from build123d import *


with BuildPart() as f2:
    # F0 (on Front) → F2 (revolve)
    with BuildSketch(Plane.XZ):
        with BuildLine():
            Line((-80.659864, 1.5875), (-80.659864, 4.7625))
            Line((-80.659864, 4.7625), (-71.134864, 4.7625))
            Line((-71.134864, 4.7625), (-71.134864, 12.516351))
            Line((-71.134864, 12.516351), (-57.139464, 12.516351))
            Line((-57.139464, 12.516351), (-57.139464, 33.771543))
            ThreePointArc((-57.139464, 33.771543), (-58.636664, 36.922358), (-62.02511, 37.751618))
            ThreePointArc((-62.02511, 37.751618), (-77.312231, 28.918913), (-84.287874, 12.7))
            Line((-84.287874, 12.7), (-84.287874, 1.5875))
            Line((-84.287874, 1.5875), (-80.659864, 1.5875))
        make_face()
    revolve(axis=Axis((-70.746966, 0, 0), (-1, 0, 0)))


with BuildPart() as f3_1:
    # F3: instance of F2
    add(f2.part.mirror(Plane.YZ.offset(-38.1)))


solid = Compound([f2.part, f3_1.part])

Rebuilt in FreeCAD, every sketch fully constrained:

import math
import FreeCAD as App
import Part
import Sketcher
from FreeCAD import Vector
Q = App.Units.Quantity

doc = App.newDocument("Part")
body = doc.addObject("PartDesign::Body", "Body")

# Sketch on XZ plane
sketch1 = body.newObject("Sketcher::SketchObject", "Sketch")
sketch1.AttachmentSupport = (doc.getObject("XZ_Plane"), [""])
sketch1.MapMode = "FlatFace"
sketch1.addGeometry([
    Part.LineSegment(Vector(-80.659864, 1.5875, 0), Vector(-80.659864, 4.7625, 0)),  # 0
    Part.LineSegment(Vector(-80.659864, 4.7625, 0), Vector(-71.134864, 4.7625, 0)),  # 1
    Part.LineSegment(Vector(-71.134864, 4.7625, 0), Vector(-71.134864, 12.516351, 0)),  # 2
    Part.LineSegment(Vector(-71.134864, 12.516351, 0), Vector(-57.139464, 12.516351, 0)),  # 3
    Part.LineSegment(Vector(-57.139464, 12.516351, 0), Vector(-57.139464, 33.771543, 0)),  # 4
    Part.ArcOfCircle(Part.Circle(Vector(-61.203464, 33.771543, 0), Vector(0, 0, 1), 4.064), math.radians(-0.000002), math.radians(101.66427)),  # 5
    Part.ArcOfCircle(Part.Circle(Vector(-56.357346, 10.296817, 0), Vector(0, 0, 1), 28.033724), math.radians(101.664271), math.radians(175.082299)),  # 6
    Part.LineSegment(Vector(-84.287874, 12.7, 0), Vector(-84.287874, 1.5875, 0)),  # 7
    Part.LineSegment(Vector(-84.287874, 1.5875, 0), Vector(-80.659864, 1.5875, 0)),  # 8
], False)
sketch1.addConstraint([
    Sketcher.Constraint("Coincident", 0, 2, 1, 1),
    Sketcher.Constraint("Coincident", 1, 2, 2, 1),
    Sketcher.Constraint("Coincident", 2, 2, 3, 1),
    Sketcher.Constraint("Coincident", 3, 2, 4, 1),
    Sketcher.Constraint("Coincident", 4, 2, 5, 1),
    Sketcher.Constraint("Coincident", 5, 2, 6, 1),
    Sketcher.Constraint("Coincident", 6, 2, 7, 1),
    Sketcher.Constraint("Coincident", 7, 2, 8, 1),
    Sketcher.Constraint("Coincident", 8, 2, 0, 1),
    Sketcher.Constraint("Vertical", 0),
    Sketcher.Constraint("Horizontal", 1),
    Sketcher.Constraint("Vertical", 2),
    Sketcher.Constraint("Horizontal", 3),
    Sketcher.Constraint("Vertical", 4),
    Sketcher.Constraint("Vertical", 7),
    Sketcher.Constraint("Horizontal", 8),
    Sketcher.Constraint("Radius", 5, Q("0.16 in")),
    Sketcher.Constraint("DistanceY", -1, 1, 6, 2, Q("0.5 in")),
    Sketcher.Constraint("DistanceX", 1, 1, 1, 2, Q("0.375 in")),
    Sketcher.Constraint("DistanceX", 3, 1, 3, 2, Q("0.551 in")),
    Sketcher.Constraint("DistanceY", 0, 1, 0, 2, Q("0.125 in")),
    Sketcher.Constraint("DistanceY", 7, 2, 7, 1, Q("0.4375 in")),
    Sketcher.Constraint("Radius", 6, Q("28.033724 mm")),
    Sketcher.Constraint("DistanceX", 8, 1, 8, 2, Q("3.62801 mm")),
    Sketcher.Constraint("DistanceY", 2, 1, 2, 2, Q("7.753851 mm")),
    Sketcher.Constraint("DistanceY", 6, 3, 5, 2, Q("27.454801 mm")),
    Sketcher.Constraint("DistanceY", 4, 1, 4, 2, Q("21.255192 mm")),
    Sketcher.Constraint("DistanceX", 5, 2, -1, 1, Q("62.02511 mm")),
    Sketcher.Constraint("DistanceY", -1, 1, 5, 2, Q("37.751618 mm")),
])
revolution = body.newObject("PartDesign::Revolution", "Revolution")
revolution.Profile = sketch1
revolution.ReferenceAxis = (sketch1, ["H_Axis"])
revolution.Angle = 360
body2 = doc.addObject("PartDesign::Body", "Body001")
doc.recompute()

mirroring = doc.addObject("Part::Mirroring", "Mirroring")
mirroring.Source = body
mirroring.Base = Vector(-38.1, 0, 0)
mirroring.Normal = Vector(1, 0, 0)
body2.BaseFeature = mirroring
doc.recompute()
mirroring.Visibility = False

doc.recompute()
